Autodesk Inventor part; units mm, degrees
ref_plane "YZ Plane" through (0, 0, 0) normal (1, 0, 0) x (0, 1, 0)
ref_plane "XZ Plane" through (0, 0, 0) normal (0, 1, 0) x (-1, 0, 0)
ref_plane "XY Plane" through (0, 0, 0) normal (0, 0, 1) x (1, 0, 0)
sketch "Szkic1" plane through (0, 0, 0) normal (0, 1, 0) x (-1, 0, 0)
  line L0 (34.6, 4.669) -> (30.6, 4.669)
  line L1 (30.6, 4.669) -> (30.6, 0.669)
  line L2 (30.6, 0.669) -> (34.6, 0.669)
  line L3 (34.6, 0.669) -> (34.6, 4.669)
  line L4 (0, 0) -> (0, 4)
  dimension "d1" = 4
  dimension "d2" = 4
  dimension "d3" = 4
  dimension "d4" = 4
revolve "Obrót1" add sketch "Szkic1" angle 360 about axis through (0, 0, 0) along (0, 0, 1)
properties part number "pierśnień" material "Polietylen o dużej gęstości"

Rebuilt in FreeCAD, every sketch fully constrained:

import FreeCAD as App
import Part
import Sketcher

V = App.Vector

doc = App.newDocument("Part")
body = doc.addObject("PartDesign::Body", "Body")

# Sketch on XZ plane
sketch1 = body.newObject("Sketcher::SketchObject", "Sketch")
sketch1.AttachmentSupport = (doc.getObject("XZ_Plane"), [""])
sketch1.MapMode = "FlatFace"
sketch1.addGeometry(Part.LineSegment(V(-34.6, 0.669, 0), V(-34.6, 4.669, 0)), False)
sketch1.addGeometry(Part.LineSegment(V(-34.6, 4.669, 0), V(-30.6, 4.669, 0)), False)
sketch1.addGeometry(Part.LineSegment(V(-30.6, 4.669, 0), V(-30.6, 0.669, 0)), False)
sketch1.addGeometry(Part.LineSegment(V(-30.6, 0.669, 0), V(-34.6, 0.669, 0)), False)
sketch1.addConstraint(Sketcher.Constraint("Coincident", 0, 2, 1, 1))
sketch1.addConstraint(Sketcher.Constraint("Coincident", 1, 2, 2, 1))
sketch1.addConstraint(Sketcher.Constraint("Coincident", 2, 2, 3, 1))
sketch1.addConstraint(Sketcher.Constraint("Coincident", 3, 2, 0, 1))
sketch1.addConstraint(Sketcher.Constraint("Vertical", 0))
sketch1.addConstraint(Sketcher.Constraint("Horizontal", 1))
sketch1.addConstraint(Sketcher.Constraint("Vertical", 2))
sketch1.addConstraint(Sketcher.Constraint("Horizontal", 3))
sketch1.addConstraint(Sketcher.Constraint("Equal", 3, 0))
sketch1.addConstraint(Sketcher.Constraint("DistanceX", 1, 1, 1, 2, 4.0))
sketch1.addConstraint(Sketcher.Constraint("DistanceX", 0, 2, -1, 1, 34.6))
sketch1.addConstraint(Sketcher.Constraint("DistanceY", -1, 1, 0, 2, 4.669))
revolution = body.newObject("PartDesign::Revolution", "Revolution")
revolution.Profile = sketch1
revolution.ReferenceAxis = (sketch1, ["V_Axis"])
revolution.Angle = 360

doc.recompute()
